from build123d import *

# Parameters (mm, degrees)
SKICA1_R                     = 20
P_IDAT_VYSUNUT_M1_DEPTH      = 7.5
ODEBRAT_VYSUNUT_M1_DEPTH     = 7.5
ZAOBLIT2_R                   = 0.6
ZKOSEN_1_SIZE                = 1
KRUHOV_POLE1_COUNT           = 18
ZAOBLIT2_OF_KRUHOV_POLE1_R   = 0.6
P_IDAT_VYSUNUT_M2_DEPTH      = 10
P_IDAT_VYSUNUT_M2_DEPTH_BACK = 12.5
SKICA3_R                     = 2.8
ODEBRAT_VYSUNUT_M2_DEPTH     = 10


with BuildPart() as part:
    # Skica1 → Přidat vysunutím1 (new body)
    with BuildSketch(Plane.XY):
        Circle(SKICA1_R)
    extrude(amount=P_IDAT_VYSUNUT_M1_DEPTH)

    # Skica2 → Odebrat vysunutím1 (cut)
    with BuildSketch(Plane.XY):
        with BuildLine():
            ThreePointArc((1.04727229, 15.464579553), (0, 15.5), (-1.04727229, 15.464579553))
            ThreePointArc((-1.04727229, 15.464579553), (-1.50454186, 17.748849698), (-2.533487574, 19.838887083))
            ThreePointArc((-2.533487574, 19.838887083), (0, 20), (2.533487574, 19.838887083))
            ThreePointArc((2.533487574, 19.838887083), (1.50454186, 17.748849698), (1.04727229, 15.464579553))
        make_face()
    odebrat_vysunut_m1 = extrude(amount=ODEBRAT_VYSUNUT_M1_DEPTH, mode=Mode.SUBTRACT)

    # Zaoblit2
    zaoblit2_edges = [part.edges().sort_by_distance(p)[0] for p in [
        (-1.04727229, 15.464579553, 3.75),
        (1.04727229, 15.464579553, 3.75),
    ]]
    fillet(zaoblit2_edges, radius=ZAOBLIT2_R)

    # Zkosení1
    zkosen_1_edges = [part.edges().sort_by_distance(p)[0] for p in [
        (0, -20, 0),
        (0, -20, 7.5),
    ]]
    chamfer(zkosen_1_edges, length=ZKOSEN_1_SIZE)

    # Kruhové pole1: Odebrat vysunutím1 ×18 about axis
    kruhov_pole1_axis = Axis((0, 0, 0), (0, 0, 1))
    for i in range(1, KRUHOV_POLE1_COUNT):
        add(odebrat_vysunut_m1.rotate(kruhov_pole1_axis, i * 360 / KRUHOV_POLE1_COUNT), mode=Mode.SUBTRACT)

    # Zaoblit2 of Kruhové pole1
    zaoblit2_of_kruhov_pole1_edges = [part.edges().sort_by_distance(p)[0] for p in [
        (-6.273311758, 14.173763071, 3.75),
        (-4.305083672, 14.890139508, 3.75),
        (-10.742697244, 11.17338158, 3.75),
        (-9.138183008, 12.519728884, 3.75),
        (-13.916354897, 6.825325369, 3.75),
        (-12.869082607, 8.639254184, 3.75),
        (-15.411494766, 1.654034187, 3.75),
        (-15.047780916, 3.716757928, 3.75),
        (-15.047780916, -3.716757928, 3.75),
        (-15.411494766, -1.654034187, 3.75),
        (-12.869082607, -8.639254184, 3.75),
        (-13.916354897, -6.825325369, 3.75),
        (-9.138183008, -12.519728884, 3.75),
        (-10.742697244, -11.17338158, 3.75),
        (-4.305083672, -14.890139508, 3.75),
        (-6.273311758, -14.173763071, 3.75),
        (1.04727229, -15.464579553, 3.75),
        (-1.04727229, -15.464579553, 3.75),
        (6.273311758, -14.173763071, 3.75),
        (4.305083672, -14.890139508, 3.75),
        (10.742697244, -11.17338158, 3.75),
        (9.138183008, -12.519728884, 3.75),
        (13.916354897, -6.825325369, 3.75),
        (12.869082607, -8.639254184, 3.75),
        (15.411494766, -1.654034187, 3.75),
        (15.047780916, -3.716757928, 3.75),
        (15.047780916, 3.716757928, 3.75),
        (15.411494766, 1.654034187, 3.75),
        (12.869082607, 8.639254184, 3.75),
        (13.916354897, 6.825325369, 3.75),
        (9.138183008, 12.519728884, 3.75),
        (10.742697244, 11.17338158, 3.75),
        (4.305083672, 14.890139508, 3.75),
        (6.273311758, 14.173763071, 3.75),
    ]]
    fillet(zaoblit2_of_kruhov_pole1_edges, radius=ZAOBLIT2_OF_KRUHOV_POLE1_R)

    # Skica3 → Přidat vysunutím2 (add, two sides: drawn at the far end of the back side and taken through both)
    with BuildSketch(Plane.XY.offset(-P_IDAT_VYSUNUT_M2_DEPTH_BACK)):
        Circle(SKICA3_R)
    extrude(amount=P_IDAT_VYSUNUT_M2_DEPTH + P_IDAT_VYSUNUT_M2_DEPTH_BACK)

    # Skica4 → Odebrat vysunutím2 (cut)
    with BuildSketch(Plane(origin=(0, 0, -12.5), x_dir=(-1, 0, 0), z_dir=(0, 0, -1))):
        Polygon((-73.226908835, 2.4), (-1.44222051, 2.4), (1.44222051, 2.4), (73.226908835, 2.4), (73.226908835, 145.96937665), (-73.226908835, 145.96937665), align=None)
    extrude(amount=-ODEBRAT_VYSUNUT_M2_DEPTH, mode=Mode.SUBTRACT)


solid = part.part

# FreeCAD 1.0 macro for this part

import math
import FreeCAD as App
import Part
import Sketcher

V = App.Vector


def edges_at(feature, points):
    """Names of the edges that pass closest to the given points."""
    edges = feature.Shape.Edges
    near = lambda p: min(range(len(edges)), key=lambda i: edges[i].distToShape(Part.Vertex(*p))[0])
    return sorted({f"Edge{near(p) + 1}" for p in points})


def add_polygon(sketch, points):
    """Adds a closed chain of lines whose ends are joined by coincident constraints."""
    first, n = sketch.GeometryCount, len(points)
    for a, b in zip(points, points[1:] + points[:1]):
        sketch.addGeometry(Part.LineSegment(App.Vector(*a, 0), App.Vector(*b, 0)), False)
    for i in range(n):
        sketch.addConstraint(Sketcher.Constraint("Coincident", first + i, 2, first + (i + 1) % n, 1))

doc = App.newDocument("Part")
body = doc.addObject("PartDesign::Body", "Body")

# Sketch on XY plane
sketch1 = doc.addObject("Sketcher::SketchObject", "Sketch")
body.addObject(sketch1)
sketch1.AttachmentSupport = (doc.XY_Plane, [""])
sketch1.MapMode = "FlatFace"
sketch1.addGeometry(Part.Circle(V(0, 0, 0), V(0, 0, 1), 20), False)
sketch1.addConstraint([
    Sketcher.Constraint("Coincident", 0, 3, -1, 1),
    Sketcher.Constraint("Diameter", 0, 40.0),
])
pad1 = doc.addObject("PartDesign::Pad", "Pad")
body.addObject(pad1)
pad1.Profile = sketch1
pad1.Length = 7.5

# Sketch on XY plane
sketch2 = doc.addObject("Sketcher::SketchObject", "Sketch001")
body.addObject(sketch2)
sketch2.AttachmentSupport = (doc.XY_Plane, [""])
sketch2.MapMode = "FlatFace"
sketch2.addGeometry([
    Part.ArcOfCircle(Part.Circle(V(0, 0, 0), V(0, 0, 1), 15.5), math.radians(86.13), math.radians(93.87)),
    Part.ArcOfCircle(Part.Circle(V(10, 14.9, 0), V(0, 0, 1), 9), math.radians(146), math.radians(176)),
    Part.ArcOfCircle(Part.Circle(V(0, 0, 0), V(0, 0, 1), 20), math.radians(82.72), math.radians(97.28)),
    Part.ArcOfCircle(Part.Circle(V(-10, 14.9, 0), V(0, 0, 1), 9), math.radians(4), math.radians(34)),
], False)
sketch2.addConstraint([
    Sketcher.Constraint("Coincident", 0, 1, 1, 2),
    Sketcher.Constraint("Coincident", 1, 1, 2, 1),
    Sketcher.Constraint("Coincident", 2, 2, 3, 2),
    Sketcher.Constraint("Coincident", 3, 1, 0, 2),
    Sketcher.Constraint("Coincident", 0, 3, -1, 1),
    Sketcher.Constraint("Coincident", 2, 3, -1, 1),
    Sketcher.Constraint("Equal", 1, 3),
    Sketcher.Constraint("Symmetric", 1, 3, 3, 3, -2),
    Sketcher.Constraint("Radius", 2, 20.0),
    Sketcher.Constraint("Radius", 0, 15.5),
    Sketcher.Constraint("Radius", 1, 8.988476),
    Sketcher.Constraint("DistanceX", -1, 1, 1, 3, 10.015208),
    Sketcher.Constraint("DistanceX", 3, 3, 0, 1, 11.062481),
])
pocket1 = doc.addObject("PartDesign::Pocket", "Pocket")
body.addObject(pocket1)
pocket1.Profile = sketch2
pocket1.Length = 7.5
pocket1.Reversed = True
doc.recompute()

fillet = doc.addObject("PartDesign::Fillet", "Fillet")
body.addObject(fillet)
fillet.Base = (pocket1, edges_at(pocket1, [(-1.047, 15.465, 3.75), (1.047, 15.465, 3.75)]))
fillet.Radius = 0.6
doc.recompute()

chamfer = doc.addObject("PartDesign::Chamfer", "Chamfer")
body.addObject(chamfer)
chamfer.Base = (fillet, edges_at(fillet, [(0, -20, 0), (0, -20, 7.5)]))
chamfer.Size = 1
doc.recompute()

polarpattern = doc.addObject("PartDesign::PolarPattern", "PolarPattern")
body.addObject(polarpattern)
polarpattern.Originals = [pocket1]
polarpattern.Axis = (doc.Z_Axis, [""])
polarpattern.Angle = 360
polarpattern.Occurrences = 18
body.Tip = polarpattern
doc.recompute()

fillet2 = doc.addObject("PartDesign::Fillet", "Fillet001")
body.addObject(fillet2)
fillet2.Base = (polarpattern, edges_at(polarpattern, [
    (-6.273, 14.174, 3.75),
    (-4.305, 14.89, 3.75),
    (-10.743, 11.173, 3.75),
    (-9.138, 12.52, 3.75),
    (-13.916, 6.825, 3.75),
    (-12.869, 8.639, 3.75),
    (-15.411, 1.654, 3.75),
    (-15.048, 3.717, 3.75),
    (-15.048, -3.717, 3.75),
    (-15.411, -1.654, 3.75),
    (-12.869, -8.639, 3.75),
    (-13.916, -6.825, 3.75),
    (-9.138, -12.52, 3.75),
    (-10.743, -11.173, 3.75),
    (-4.305, -14.89, 3.75),
    (-6.273, -14.174, 3.75),
    (1.047, -15.465, 3.75),
    (-1.047, -15.465, 3.75),
    (6.273, -14.174, 3.75),
    (4.305, -14.89, 3.75),
    (10.743, -11.173, 3.75),
    (9.138, -12.52, 3.75),
    (13.916, -6.825, 3.75),
    (12.869, -8.639, 3.75),
    (15.411, -1.654, 3.75),
    (15.048, -3.717, 3.75),
    (15.048, 3.717, 3.75),
    (15.411, 1.654, 3.75),
    (12.869, 8.639, 3.75),
    (13.916, 6.825, 3.75),
    (9.138, 12.52, 3.75),
    (10.743, 11.173, 3.75),
    (4.305, 14.89, 3.75),
    (6.273, 14.174, 3.75),
]))
fillet2.Radius = 0.6

# Sketch on XY plane
sketch3 = doc.addObject("Sketcher::SketchObject", "Sketch002")
body.addObject(sketch3)
sketch3.AttachmentSupport = (doc.XY_Plane, [""])
sketch3.MapMode = "FlatFace"
sketch3.addGeometry(Part.Circle(V(0, 0, 0), V(0, 0, 1), 2.8), False)
sketch3.addConstraint([
    Sketcher.Constraint("Coincident", 0, 3, -1, 1),
    Sketcher.Constraint("Diameter", 0, 5.6),
])
pad2 = doc.addObject("PartDesign::Pad", "Pad001")
body.addObject(pad2)
pad2.Profile = sketch3
pad2.Type = "TwoLengths"
pad2.Length = 10
pad2.Length2 = 12.5

# Sketch on XY plane
sketch4 = doc.addObject("Sketcher::SketchObject", "Sketch003")
body.addObject(sketch4)
sketch4.AttachmentSupport = (doc.XY_Plane, [""])
sketch4.MapMode = "FlatFace"
sketch4.AttachmentOffset = App.Placement(V(0, 0, -12.5), App.Rotation())
add_polygon(sketch4, [(73, 2), (-73, 2), (-73, 146), (73, 146)])  # lines 0-3
sketch4.addConstraint([
    Sketcher.Constraint("Horizontal", 0),
    Sketcher.Constraint("Vertical", 1),
    Sketcher.Constraint("Horizontal", 2),
    Sketcher.Constraint("Vertical", 3),
    Sketcher.Constraint("DistanceY", -1, 1, 0, 2, 2.4),
    Sketcher.Constraint("DistanceX", 0, 2, 0, 1, 146.453818),
    Sketcher.Constraint("DistanceY", 1, 1, 1, 2, 143.569377),
    Sketcher.Constraint("DistanceX", 0, 2, -1, 1, 73.226909),
])
pocket2 = doc.addObject("PartDesign::Pocket", "Pocket001")
body.addObject(pocket2)
pocket2.Profile = sketch4
pocket2.Length = 10
pocket2.Reversed = True

doc.recompute()
